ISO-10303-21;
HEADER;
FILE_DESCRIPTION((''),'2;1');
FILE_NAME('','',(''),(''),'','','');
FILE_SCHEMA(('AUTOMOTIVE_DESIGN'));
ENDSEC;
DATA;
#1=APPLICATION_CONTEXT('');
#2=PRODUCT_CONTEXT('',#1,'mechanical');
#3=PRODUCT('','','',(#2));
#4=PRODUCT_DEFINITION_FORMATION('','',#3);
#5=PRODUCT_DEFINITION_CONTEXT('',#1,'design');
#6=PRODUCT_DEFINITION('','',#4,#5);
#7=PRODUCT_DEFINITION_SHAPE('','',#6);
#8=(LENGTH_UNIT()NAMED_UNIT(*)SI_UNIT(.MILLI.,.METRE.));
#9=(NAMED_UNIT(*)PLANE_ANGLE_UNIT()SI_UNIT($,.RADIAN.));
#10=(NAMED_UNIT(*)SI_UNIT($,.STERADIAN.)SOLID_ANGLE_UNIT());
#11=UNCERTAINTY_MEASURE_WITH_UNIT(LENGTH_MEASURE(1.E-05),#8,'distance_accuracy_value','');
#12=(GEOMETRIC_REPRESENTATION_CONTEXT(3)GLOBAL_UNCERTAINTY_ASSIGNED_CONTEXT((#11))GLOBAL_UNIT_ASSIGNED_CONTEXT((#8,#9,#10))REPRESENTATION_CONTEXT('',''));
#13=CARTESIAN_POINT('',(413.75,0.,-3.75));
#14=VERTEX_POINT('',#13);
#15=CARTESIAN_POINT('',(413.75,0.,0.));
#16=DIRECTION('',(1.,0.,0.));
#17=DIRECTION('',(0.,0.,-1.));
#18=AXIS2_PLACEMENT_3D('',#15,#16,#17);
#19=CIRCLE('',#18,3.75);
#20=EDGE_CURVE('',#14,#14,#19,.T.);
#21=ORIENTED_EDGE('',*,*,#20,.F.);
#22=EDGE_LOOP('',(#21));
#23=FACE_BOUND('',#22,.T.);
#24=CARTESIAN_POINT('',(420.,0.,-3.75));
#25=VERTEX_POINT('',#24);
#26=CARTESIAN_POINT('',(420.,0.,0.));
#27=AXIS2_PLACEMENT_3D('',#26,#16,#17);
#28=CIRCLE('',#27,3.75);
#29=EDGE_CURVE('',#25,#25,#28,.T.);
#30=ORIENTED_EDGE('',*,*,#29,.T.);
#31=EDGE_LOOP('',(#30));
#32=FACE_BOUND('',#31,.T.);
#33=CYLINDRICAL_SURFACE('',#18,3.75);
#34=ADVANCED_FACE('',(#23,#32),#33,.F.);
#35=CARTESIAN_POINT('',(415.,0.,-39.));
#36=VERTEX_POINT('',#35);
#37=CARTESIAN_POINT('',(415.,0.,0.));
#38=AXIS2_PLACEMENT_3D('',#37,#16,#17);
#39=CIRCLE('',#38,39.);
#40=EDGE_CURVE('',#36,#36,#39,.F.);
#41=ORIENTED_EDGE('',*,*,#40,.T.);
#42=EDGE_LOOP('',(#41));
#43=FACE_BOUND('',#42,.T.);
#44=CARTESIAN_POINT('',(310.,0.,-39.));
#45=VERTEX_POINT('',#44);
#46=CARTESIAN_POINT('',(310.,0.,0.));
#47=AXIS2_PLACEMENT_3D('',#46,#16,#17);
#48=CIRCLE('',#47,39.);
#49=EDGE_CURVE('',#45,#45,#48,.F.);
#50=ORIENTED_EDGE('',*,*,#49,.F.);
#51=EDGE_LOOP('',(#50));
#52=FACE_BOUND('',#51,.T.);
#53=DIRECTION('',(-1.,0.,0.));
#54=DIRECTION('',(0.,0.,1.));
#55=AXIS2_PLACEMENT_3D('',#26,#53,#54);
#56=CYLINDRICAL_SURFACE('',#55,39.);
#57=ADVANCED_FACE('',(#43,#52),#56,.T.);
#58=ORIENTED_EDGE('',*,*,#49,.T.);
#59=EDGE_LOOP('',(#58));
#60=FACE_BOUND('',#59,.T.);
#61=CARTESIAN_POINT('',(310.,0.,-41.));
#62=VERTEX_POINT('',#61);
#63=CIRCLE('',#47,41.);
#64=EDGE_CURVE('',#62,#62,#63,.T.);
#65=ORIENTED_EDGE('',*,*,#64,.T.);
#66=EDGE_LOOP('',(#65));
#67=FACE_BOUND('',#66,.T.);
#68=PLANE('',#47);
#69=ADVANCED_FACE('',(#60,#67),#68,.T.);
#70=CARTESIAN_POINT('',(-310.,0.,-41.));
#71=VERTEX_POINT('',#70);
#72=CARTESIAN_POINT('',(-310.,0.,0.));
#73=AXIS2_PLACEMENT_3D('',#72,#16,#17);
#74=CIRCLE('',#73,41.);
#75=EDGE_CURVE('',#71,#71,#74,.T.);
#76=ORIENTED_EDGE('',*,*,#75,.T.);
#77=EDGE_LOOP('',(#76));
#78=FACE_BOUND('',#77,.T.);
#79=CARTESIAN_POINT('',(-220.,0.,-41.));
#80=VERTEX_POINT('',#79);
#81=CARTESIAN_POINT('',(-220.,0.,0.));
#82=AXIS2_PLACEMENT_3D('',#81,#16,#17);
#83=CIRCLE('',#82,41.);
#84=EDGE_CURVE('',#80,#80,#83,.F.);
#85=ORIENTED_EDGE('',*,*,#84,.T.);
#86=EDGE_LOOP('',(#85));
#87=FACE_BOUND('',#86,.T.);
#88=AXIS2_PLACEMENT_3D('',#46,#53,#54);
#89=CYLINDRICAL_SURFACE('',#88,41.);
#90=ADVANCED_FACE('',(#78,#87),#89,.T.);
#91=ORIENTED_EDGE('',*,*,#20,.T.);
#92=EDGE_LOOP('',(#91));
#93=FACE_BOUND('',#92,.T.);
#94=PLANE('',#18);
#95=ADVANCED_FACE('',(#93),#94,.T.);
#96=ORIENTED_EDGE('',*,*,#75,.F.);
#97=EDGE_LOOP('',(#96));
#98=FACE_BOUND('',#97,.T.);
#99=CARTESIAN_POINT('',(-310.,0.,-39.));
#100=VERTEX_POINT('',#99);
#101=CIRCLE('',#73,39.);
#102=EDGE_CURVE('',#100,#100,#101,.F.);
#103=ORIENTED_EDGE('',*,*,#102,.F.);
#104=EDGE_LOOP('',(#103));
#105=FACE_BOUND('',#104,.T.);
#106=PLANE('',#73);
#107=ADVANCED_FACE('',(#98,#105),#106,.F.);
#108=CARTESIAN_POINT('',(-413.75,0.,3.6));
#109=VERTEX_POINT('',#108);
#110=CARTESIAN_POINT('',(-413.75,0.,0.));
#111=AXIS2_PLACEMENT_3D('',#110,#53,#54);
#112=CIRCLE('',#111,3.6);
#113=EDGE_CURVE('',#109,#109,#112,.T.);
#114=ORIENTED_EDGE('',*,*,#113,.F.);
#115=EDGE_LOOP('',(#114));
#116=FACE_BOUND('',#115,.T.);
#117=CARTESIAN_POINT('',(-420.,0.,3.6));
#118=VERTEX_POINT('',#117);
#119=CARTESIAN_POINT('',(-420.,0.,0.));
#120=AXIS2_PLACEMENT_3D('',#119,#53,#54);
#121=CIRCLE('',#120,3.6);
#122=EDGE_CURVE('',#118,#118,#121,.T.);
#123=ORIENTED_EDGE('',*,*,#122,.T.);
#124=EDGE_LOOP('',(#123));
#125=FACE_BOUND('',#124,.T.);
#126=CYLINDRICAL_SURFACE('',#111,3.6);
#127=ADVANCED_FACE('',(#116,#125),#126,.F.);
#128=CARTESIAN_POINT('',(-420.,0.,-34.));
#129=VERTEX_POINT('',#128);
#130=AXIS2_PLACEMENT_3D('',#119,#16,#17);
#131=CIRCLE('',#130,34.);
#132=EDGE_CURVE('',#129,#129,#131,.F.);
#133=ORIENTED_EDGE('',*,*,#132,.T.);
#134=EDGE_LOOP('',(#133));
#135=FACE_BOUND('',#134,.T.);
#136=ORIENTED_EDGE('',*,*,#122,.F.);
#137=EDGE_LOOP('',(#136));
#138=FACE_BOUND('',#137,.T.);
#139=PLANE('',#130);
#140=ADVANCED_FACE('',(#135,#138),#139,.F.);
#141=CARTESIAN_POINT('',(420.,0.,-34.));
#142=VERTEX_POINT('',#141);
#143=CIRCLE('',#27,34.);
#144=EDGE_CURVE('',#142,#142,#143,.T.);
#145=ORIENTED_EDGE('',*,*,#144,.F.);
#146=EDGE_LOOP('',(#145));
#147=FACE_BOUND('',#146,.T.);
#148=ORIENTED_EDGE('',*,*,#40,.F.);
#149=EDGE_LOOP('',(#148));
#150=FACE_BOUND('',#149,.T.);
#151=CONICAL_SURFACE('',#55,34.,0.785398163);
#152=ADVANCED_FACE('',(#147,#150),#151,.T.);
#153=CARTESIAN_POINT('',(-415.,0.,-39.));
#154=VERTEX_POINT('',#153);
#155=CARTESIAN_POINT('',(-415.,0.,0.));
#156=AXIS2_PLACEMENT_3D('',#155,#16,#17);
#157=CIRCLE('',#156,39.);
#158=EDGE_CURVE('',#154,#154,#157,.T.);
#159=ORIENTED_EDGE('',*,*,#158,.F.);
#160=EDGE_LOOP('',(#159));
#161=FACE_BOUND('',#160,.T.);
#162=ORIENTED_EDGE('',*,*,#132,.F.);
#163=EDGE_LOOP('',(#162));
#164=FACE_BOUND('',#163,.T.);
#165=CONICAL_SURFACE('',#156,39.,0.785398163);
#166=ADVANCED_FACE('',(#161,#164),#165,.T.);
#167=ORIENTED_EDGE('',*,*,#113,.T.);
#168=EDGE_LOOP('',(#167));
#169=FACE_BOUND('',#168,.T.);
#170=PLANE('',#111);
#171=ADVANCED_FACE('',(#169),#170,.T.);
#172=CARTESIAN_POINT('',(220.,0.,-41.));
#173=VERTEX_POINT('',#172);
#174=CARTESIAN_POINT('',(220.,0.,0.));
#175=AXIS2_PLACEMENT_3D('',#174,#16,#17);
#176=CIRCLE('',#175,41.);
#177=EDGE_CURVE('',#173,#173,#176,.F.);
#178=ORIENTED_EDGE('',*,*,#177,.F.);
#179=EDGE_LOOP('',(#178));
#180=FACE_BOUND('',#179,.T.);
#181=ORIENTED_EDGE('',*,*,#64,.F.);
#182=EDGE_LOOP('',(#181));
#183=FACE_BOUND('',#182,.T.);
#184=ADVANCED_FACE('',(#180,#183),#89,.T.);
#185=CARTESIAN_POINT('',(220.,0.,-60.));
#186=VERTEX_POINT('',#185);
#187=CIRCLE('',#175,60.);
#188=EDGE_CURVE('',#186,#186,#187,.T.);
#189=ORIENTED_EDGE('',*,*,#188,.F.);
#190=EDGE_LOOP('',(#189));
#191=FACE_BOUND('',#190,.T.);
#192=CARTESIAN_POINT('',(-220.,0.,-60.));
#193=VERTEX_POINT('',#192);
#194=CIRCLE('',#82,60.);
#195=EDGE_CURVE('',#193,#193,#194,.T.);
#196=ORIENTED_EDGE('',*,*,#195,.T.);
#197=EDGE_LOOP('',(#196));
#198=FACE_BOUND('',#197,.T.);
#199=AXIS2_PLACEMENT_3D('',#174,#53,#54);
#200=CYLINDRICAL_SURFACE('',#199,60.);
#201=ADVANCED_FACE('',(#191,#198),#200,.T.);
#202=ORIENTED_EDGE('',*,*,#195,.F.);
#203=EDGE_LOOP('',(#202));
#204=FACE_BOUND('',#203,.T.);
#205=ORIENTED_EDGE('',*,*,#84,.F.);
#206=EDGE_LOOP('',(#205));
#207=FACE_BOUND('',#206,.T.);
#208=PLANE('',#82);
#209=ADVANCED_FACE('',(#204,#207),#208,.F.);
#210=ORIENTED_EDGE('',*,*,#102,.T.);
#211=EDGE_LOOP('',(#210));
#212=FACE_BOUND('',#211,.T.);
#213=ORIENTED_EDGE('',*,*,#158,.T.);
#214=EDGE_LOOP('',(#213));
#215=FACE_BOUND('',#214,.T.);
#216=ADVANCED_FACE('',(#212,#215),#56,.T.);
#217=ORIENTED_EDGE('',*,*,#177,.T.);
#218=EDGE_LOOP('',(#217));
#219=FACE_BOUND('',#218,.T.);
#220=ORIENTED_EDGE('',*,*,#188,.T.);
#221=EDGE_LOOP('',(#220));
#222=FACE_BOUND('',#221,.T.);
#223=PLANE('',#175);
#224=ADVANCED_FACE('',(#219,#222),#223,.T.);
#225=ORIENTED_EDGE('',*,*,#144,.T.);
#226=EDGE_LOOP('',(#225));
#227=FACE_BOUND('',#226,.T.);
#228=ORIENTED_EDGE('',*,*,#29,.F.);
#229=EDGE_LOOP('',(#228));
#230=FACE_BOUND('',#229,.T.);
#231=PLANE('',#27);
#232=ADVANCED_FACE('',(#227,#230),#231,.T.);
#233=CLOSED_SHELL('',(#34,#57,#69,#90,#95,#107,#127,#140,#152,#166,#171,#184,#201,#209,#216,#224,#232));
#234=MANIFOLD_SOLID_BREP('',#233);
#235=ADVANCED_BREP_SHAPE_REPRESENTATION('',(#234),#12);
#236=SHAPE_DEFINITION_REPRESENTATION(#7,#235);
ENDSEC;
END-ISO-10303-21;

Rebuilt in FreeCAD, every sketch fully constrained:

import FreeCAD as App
import Part
import Sketcher

V = App.Vector


def edges_at(feature, points):
    """Names of the edges that pass closest to the given points."""
    edges = feature.Shape.Edges
    near = lambda p: min(range(len(edges)), key=lambda i: edges[i].distToShape(Part.Vertex(*p))[0])
    return sorted({f"Edge{near(p) + 1}" for p in points})

doc = App.newDocument("Part")
body = doc.addObject("PartDesign::Body", "Body")

# Sketch on YZ plane
sketch1 = body.newObject("Sketcher::SketchObject", "Sketch")
sketch1.AttachmentSupport = (doc.getObject("YZ_Plane"), [""])
sketch1.MapMode = "FlatFace"
sketch1.addGeometry(Part.Circle(V(0, 0, 0), V(0, 0, 1), 60), False)
sketch1.addConstraint(Sketcher.Constraint("Coincident", 0, 3, -1, 1))
sketch1.addConstraint(Sketcher.Constraint("Diameter", 0, 120.0))
pad1 = body.newObject("PartDesign::Pad", "Pad")
pad1.Profile = sketch1
pad1.Length = 440
pad1.Midplane = True

# Sketch on YZ plane
sketch2 = body.newObject("Sketcher::SketchObject", "Sketch001")
sketch2.AttachmentSupport = (doc.getObject("YZ_Plane"), [""])
sketch2.MapMode = "FlatFace"
sketch2.addGeometry(Part.Circle(V(0, 0, 0), V(0, 0, 1), 41), False)
sketch2.addConstraint(Sketcher.Constraint("Coincident", 0, 3, -1, 1))
sketch2.addConstraint(Sketcher.Constraint("Diameter", 0, 82.0))
pad2 = body.newObject("PartDesign::Pad", "Pad001")
pad2.Profile = sketch2
pad2.Length = 620
pad2.Midplane = True

# Sketch on YZ plane
sketch3 = body.newObject("Sketcher::SketchObject", "Sketch002")
sketch3.AttachmentSupport = (doc.getObject("YZ_Plane"), [""])
sketch3.MapMode = "FlatFace"
sketch3.addGeometry(Part.Circle(V(0, 0, 0), V(0, 0, 1), 39), False)
sketch3.addConstraint(Sketcher.Constraint("Coincident", 0, 3, -1, 1))
sketch3.addConstraint(Sketcher.Constraint("Diameter", 0, 78.0))
pad3 = body.newObject("PartDesign::Pad", "Pad002")
pad3.Profile = sketch3
pad3.Length = 840
pad3.Midplane = True

# Sketch on YZ plane
sketch4 = body.newObject("Sketcher::SketchObject", "Sketch003")
sketch4.AttachmentSupport = (doc.getObject("YZ_Plane"), [""])
sketch4.MapMode = "FlatFace"
sketch4.AttachmentOffset = App.Placement(V(0, 0, 420), App.Rotation())
sketch4.addGeometry(Part.Circle(V(0, 0, 0), V(0, 0, 1), 3.8), False)
sketch4.addConstraint(Sketcher.Constraint("Coincident", 0, 3, -1, 1))
sketch4.addConstraint(Sketcher.Constraint("Diameter", 0, 7.5))
pocket1 = body.newObject("PartDesign::Pocket", "Pocket")
pocket1.Profile = sketch4
pocket1.Length = 6.25

# Sketch on YZ plane
sketch5 = body.newObject("Sketcher::SketchObject", "Sketch004")
sketch5.AttachmentSupport = (doc.getObject("YZ_Plane"), [""])
sketch5.MapMode = "FlatFace"
sketch5.AttachmentOffset = App.Placement(V(0, 0, -420), App.Rotation())
sketch5.addGeometry(Part.Circle(V(0, 0, 0), V(0, 0, 1), 3.6), False)
sketch5.addConstraint(Sketcher.Constraint("Coincident", 0, 3, -1, 1))
sketch5.addConstraint(Sketcher.Constraint("Diameter", 0, 7.2))
pocket2 = body.newObject("PartDesign::Pocket", "Pocket001")
pocket2.Profile = sketch5
pocket2.Length = 6.25
pocket2.Reversed = True
doc.recompute()

chamfer = body.newObject("PartDesign::Chamfer", "Chamfer")
chamfer.Base = (pocket2, edges_at(pocket2, [(-420, 0, 39), (420, 0, 39)]))
chamfer.Size = 5

doc.recompute()
